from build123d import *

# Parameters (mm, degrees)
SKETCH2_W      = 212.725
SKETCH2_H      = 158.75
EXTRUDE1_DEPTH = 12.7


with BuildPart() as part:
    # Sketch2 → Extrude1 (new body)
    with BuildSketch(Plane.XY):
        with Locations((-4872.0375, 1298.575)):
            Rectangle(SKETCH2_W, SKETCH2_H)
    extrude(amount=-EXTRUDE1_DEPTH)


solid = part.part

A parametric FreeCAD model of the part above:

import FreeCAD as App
import Part
import Sketcher
from FreeCAD import Vector
Q = App.Units.Quantity

doc = App.newDocument("Part")
body = doc.addObject("PartDesign::Body", "Body")

# Sketch on XY plane
sketch1 = doc.addObject("Sketcher::SketchObject", "Sketch")
body.addObject(sketch1)
sketch1.AttachmentSupport = (doc.XY_Plane, [""])
sketch1.MapMode = "FlatFace"
sketch1.addGeometry([
    Part.LineSegment(Vector(-4978, 1378, 0), Vector(-4978, 1219, 0)),
    Part.LineSegment(Vector(-4978, 1219, 0), Vector(-4766, 1219, 0)),
    Part.LineSegment(Vector(-4766, 1219, 0), Vector(-4766, 1378, 0)),
    Part.LineSegment(Vector(-4766, 1378, 0), Vector(-4978, 1378, 0)),
], False)
sketch1.addConstraint([
    Sketcher.Constraint("Coincident", 0, 2, 1, 1),
    Sketcher.Constraint("Coincident", 1, 2, 2, 1),
    Sketcher.Constraint("Coincident", 2, 2, 3, 1),
    Sketcher.Constraint("Coincident", 3, 2, 0, 1),
    Sketcher.Constraint("Vertical", 0),
    Sketcher.Constraint("Horizontal", 1),
    Sketcher.Constraint("Vertical", 2),
    Sketcher.Constraint("Horizontal", 3),
    Sketcher.Constraint("DistanceX", 0, 2, -1, 1, Q("196 in")),
    Sketcher.Constraint("DistanceY", -1, 1, 0, 2, Q("48 in")),
    Sketcher.Constraint("DistanceY", 0, 2, 0, 1, Q("6.25 in")),
    Sketcher.Constraint("DistanceX", 1, 1, 1, 2, Q("8.375 in")),
])
pad1 = doc.addObject("PartDesign::Pad", "Pad")
body.addObject(pad1)
pad1.Profile = sketch1
pad1.Length = Q("0.5 in")
pad1.Reversed = True

doc.recompute()
